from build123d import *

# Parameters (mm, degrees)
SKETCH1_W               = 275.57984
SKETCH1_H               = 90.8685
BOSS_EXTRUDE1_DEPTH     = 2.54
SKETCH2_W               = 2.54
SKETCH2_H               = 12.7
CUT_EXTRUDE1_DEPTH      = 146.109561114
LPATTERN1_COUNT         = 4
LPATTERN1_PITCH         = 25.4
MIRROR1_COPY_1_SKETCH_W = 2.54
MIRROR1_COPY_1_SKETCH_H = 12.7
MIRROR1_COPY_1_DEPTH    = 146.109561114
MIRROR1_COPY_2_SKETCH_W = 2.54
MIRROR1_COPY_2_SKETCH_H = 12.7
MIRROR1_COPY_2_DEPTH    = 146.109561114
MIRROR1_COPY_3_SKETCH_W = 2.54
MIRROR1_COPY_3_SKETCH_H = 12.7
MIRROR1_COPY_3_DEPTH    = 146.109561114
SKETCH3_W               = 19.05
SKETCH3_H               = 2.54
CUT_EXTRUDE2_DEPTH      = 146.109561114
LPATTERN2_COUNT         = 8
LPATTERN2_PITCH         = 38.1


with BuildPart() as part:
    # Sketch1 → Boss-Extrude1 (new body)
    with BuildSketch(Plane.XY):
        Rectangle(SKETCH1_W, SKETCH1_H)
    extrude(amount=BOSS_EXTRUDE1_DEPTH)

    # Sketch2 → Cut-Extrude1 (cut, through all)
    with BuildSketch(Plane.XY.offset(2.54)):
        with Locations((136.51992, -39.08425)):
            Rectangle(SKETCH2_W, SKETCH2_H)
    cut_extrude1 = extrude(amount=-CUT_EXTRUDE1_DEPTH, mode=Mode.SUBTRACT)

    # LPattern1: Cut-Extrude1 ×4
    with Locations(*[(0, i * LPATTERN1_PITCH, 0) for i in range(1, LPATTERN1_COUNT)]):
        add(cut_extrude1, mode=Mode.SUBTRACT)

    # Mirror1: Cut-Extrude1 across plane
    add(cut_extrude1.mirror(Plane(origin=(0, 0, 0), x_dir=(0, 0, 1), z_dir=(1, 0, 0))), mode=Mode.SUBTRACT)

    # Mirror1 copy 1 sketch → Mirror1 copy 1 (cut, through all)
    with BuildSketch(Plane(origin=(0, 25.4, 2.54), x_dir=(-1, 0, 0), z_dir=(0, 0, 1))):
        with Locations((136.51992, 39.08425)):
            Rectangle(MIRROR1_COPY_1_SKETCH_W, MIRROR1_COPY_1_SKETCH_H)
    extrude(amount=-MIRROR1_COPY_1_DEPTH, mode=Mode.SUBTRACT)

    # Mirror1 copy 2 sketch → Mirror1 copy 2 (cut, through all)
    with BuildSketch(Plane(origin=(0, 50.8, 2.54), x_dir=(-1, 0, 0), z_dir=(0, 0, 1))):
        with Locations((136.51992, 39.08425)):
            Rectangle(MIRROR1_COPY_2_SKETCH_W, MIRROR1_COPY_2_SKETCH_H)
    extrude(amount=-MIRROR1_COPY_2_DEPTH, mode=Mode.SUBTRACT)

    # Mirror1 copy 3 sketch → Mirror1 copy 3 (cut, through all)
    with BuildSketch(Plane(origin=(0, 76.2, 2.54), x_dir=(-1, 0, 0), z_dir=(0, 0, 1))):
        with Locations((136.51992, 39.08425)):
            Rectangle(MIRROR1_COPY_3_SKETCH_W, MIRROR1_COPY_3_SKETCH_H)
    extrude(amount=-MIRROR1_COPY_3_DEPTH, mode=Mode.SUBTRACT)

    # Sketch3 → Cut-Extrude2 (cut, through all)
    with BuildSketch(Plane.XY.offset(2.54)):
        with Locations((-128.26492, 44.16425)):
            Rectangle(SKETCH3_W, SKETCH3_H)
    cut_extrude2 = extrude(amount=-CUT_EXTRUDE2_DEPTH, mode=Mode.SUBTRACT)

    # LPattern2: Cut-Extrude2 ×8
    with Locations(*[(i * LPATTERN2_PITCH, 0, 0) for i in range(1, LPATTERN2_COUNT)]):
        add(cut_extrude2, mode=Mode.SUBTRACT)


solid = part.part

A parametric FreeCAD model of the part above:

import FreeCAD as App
import Part
import Sketcher
Q = App.Units.Quantity

doc = App.newDocument("Part")
body = doc.addObject("PartDesign::Body", "Body")

# Sketch on XY plane
sketch1 = body.newObject("Sketcher::SketchObject", "Sketch")
sketch1.AttachmentSupport = (doc.getObject("XY_Plane"), [""])
sketch1.MapMode = "FlatFace"
sketch1.addGeometry(Part.LineSegment(App.Vector(-137.78992, 45.43425, 0), App.Vector(-137.78992, -45.43425, 0)), False)
sketch1.addGeometry(Part.LineSegment(App.Vector(-137.78992, -45.43425, 0), App.Vector(137.78992, -45.43425, 0)), False)
sketch1.addGeometry(Part.LineSegment(App.Vector(137.78992, -45.43425, 0), App.Vector(137.78992, 45.43425, 0)), False)
sketch1.addGeometry(Part.LineSegment(App.Vector(137.78992, 45.43425, 0), App.Vector(-137.78992, 45.43425, 0)), False)
sketch1.addConstraint(Sketcher.Constraint("Coincident", 0, 2, 1, 1))
sketch1.addConstraint(Sketcher.Constraint("Coincident", 1, 2, 2, 1))
sketch1.addConstraint(Sketcher.Constraint("Coincident", 2, 2, 3, 1))
sketch1.addConstraint(Sketcher.Constraint("Coincident", 3, 2, 0, 1))
sketch1.addConstraint(Sketcher.Constraint("Vertical", 0))
sketch1.addConstraint(Sketcher.Constraint("Horizontal", 1))
sketch1.addConstraint(Sketcher.Constraint("Vertical", 2))
sketch1.addConstraint(Sketcher.Constraint("Horizontal", 3))
sketch1.addConstraint(Sketcher.Constraint("Symmetric", 0, 2, 2, 2, -1, 1))
sketch1.addConstraint(Sketcher.Constraint("DistanceX", 1, 1, 1, 2, Q("10.8496 in")))
sketch1.addConstraint(Sketcher.Constraint("DistanceY", 0, 2, 0, 1, Q("3.5775 in")))
pad1 = body.newObject("PartDesign::Pad", "Pad")
pad1.Profile = sketch1
pad1.Length = Q("0.1 in")

# Sketch on XY plane
sketch2 = body.newObject("Sketcher::SketchObject", "Sketch001")
sketch2.AttachmentSupport = (doc.getObject("XY_Plane"), [""])
sketch2.MapMode = "FlatFace"
sketch2.AttachmentOffset = App.Placement(App.Vector(0, 0, 0.1 * 25.4), App.Rotation())
sketch2.addGeometry(Part.LineSegment(App.Vector(135.24992, -32.73425, 0), App.Vector(135.24992, -45.43425, 0)), False)
sketch2.addGeometry(Part.LineSegment(App.Vector(135.24992, -45.43425, 0), App.Vector(137.78992, -45.43425, 0)), False)
sketch2.addGeometry(Part.LineSegment(App.Vector(137.78992, -45.43425, 0), App.Vector(137.78992, -32.73425, 0)), False)
sketch2.addGeometry(Part.LineSegment(App.Vector(137.78992, -32.73425, 0), App.Vector(135.24992, -32.73425, 0)), False)
sketch2.addConstraint(Sketcher.Constraint("Coincident", 0, 2, 1, 1))
sketch2.addConstraint(Sketcher.Constraint("Coincident", 1, 2, 2, 1))
sketch2.addConstraint(Sketcher.Constraint("Coincident", 2, 2, 3, 1))
sketch2.addConstraint(Sketcher.Constraint("Coincident", 3, 2, 0, 1))
sketch2.addConstraint(Sketcher.Constraint("Vertical", 0))
sketch2.addConstraint(Sketcher.Constraint("Horizontal", 1))
sketch2.addConstraint(Sketcher.Constraint("Vertical", 2))
sketch2.addConstraint(Sketcher.Constraint("Horizontal", 3))
sketch2.addConstraint(Sketcher.Constraint("DistanceX", 1, 1, 1, 2, Q("0.1 in")))
sketch2.addConstraint(Sketcher.Constraint("DistanceY", 0, 2, 0, 1, Q("0.5 in")))
sketch2.addConstraint(Sketcher.Constraint("DistanceX", -1, 1, 0, 2, Q("5.3248 in")))
sketch2.addConstraint(Sketcher.Constraint("DistanceY", 0, 2, -1, 1, 45.43425))
pocket1 = body.newObject("PartDesign::Pocket", "Pocket")
pocket1.Profile = sketch2
pocket1.Type = "ThroughAll"
doc.recompute()

linearpattern = body.newObject("PartDesign::LinearPattern", "LinearPattern")
linearpattern.Originals = [pocket1]
linearpattern.Direction = (doc.getObject("Y_Axis"), [""])
linearpattern.Mode = "offset"
linearpattern.Offset = Q("1 in")
linearpattern.Occurrences = 4
body.Tip = linearpattern
doc.recompute()

mirrored = body.newObject("PartDesign::Mirrored", "Mirrored")
mirrored.Originals = [pocket1]
mirrored.MirrorPlane = (doc.getObject("YZ_Plane"), [""])
body.Tip = mirrored

# Sketch on XY plane
sketch3 = body.newObject("Sketcher::SketchObject", "Sketch002")
sketch3.AttachmentSupport = (doc.getObject("XY_Plane"), [""])
sketch3.MapMode = "FlatFace"
sketch3.AttachmentOffset = App.Placement(App.Vector(0, 0, 0.1 * 25.4), App.Rotation())
sketch3.addGeometry(Part.LineSegment(App.Vector(-135.24992, -20.03425, 0), App.Vector(-135.24992, -7.33425, 0)), False)
sketch3.addGeometry(Part.LineSegment(App.Vector(-135.24992, -7.33425, 0), App.Vector(-137.78992, -7.33425, 0)), False)
sketch3.addGeometry(Part.LineSegment(App.Vector(-137.78992, -7.33425, 0), App.Vector(-137.78992, -20.03425, 0)), False)
sketch3.addGeometry(Part.LineSegment(App.Vector(-137.78992, -20.03425, 0), App.Vector(-135.24992, -20.03425, 0)), False)
sketch3.addConstraint(Sketcher.Constraint("Coincident", 0, 2, 1, 1))
sketch3.addConstraint(Sketcher.Constraint("Coincident", 1, 2, 2, 1))
sketch3.addConstraint(Sketcher.Constraint("Coincident", 2, 2, 3, 1))
sketch3.addConstraint(Sketcher.Constraint("Coincident", 3, 2, 0, 1))
sketch3.addConstraint(Sketcher.Constraint("Vertical", 0))
sketch3.addConstraint(Sketcher.Constraint("Horizontal", 1))
sketch3.addConstraint(Sketcher.Constraint("Vertical", 2))
sketch3.addConstraint(Sketcher.Constraint("Horizontal", 3))
sketch3.addConstraint(Sketcher.Constraint("DistanceX", 1, 2, 1, 1, Q("0.1 in")))
sketch3.addConstraint(Sketcher.Constraint("DistanceY", 0, 1, 0, 2, Q("0.5 in")))
sketch3.addConstraint(Sketcher.Constraint("DistanceX", 0, 2, -1, 1, Q("5.3248 in")))
sketch3.addConstraint(Sketcher.Constraint("DistanceY", 0, 2, -1, 1, 7.33425))
pocket2 = body.newObject("PartDesign::Pocket", "Pocket001")
pocket2.Profile = sketch3
pocket2.Type = "ThroughAll"

# Sketch on XY plane
sketch4 = body.newObject("Sketcher::SketchObject", "Sketch003")
sketch4.AttachmentSupport = (doc.getObject("XY_Plane"), [""])
sketch4.MapMode = "FlatFace"
sketch4.AttachmentOffset = App.Placement(App.Vector(0, 0, 0.1 * 25.4), App.Rotation())
sketch4.addGeometry(Part.LineSegment(App.Vector(-135.24992, 5.36575, 0), App.Vector(-135.24992, 18.06575, 0)), False)
sketch4.addGeometry(Part.LineSegment(App.Vector(-135.24992, 18.06575, 0), App.Vector(-137.78992, 18.06575, 0)), False)
sketch4.addGeometry(Part.LineSegment(App.Vector(-137.78992, 18.06575, 0), App.Vector(-137.78992, 5.36575, 0)), False)
sketch4.addGeometry(Part.LineSegment(App.Vector(-137.78992, 5.36575, 0), App.Vector(-135.24992, 5.36575, 0)), False)
sketch4.addConstraint(Sketcher.Constraint("Coincident", 0, 2, 1, 1))
sketch4.addConstraint(Sketcher.Constraint("Coincident", 1, 2, 2, 1))
sketch4.addConstraint(Sketcher.Constraint("Coincident", 2, 2, 3, 1))
sketch4.addConstraint(Sketcher.Constraint("Coincident", 3, 2, 0, 1))
sketch4.addConstraint(Sketcher.Constraint("Vertical", 0))
sketch4.addConstraint(Sketcher.Constraint("Horizontal", 1))
sketch4.addConstraint(Sketcher.Constraint("Vertical", 2))
sketch4.addConstraint(Sketcher.Constraint("Horizontal", 3))
sketch4.addConstraint(Sketcher.Constraint("DistanceX", 1, 2, 1, 1, Q("0.1 in")))
sketch4.addConstraint(Sketcher.Constraint("DistanceY", 0, 1, 0, 2, Q("0.5 in")))
sketch4.addConstraint(Sketcher.Constraint("DistanceX", 0, 2, -1, 1, Q("5.3248 in")))
sketch4.addConstraint(Sketcher.Constraint("DistanceY", -1, 1, 0, 2, 18.06575))
pocket3 = body.newObject("PartDesign::Pocket", "Pocket002")
pocket3.Profile = sketch4
pocket3.Type = "ThroughAll"

# Sketch on XY plane
sketch5 = body.newObject("Sketcher::SketchObject", "Sketch004")
sketch5.AttachmentSupport = (doc.getObject("XY_Plane"), [""])
sketch5.MapMode = "FlatFace"
sketch5.AttachmentOffset = App.Placement(App.Vector(0, 0, 0.1 * 25.4), App.Rotation())
sketch5.addGeometry(Part.LineSegment(App.Vector(-135.24992, 30.76575, 0), App.Vector(-135.24992, 43.46575, 0)), False)
sketch5.addGeometry(Part.LineSegment(App.Vector(-135.24992, 43.46575, 0), App.Vector(-137.78992, 43.46575, 0)), False)
sketch5.addGeometry(Part.LineSegment(App.Vector(-137.78992, 43.46575, 0), App.Vector(-137.78992, 30.76575, 0)), False)
sketch5.addGeometry(Part.LineSegment(App.Vector(-137.78992, 30.76575, 0), App.Vector(-135.24992, 30.76575, 0)), False)
sketch5.addConstraint(Sketcher.Constraint("Coincident", 0, 2, 1, 1))
sketch5.addConstraint(Sketcher.Constraint("Coincident", 1, 2, 2, 1))
sketch5.addConstraint(Sketcher.Constraint("Coincident", 2, 2, 3, 1))
sketch5.addConstraint(Sketcher.Constraint("Coincident", 3, 2, 0, 1))
sketch5.addConstraint(Sketcher.Constraint("Vertical", 0))
sketch5.addConstraint(Sketcher.Constraint("Horizontal", 1))
sketch5.addConstraint(Sketcher.Constraint("Vertical", 2))
sketch5.addConstraint(Sketcher.Constraint("Horizontal", 3))
sketch5.addConstraint(Sketcher.Constraint("DistanceX", 1, 2, 1, 1, Q("0.1 in")))
sketch5.addConstraint(Sketcher.Constraint("DistanceY", 0, 1, 0, 2, Q("0.5 in")))
sketch5.addConstraint(Sketcher.Constraint("DistanceX", 0, 2, -1, 1, Q("5.3248 in")))
sketch5.addConstraint(Sketcher.Constraint("DistanceY", -1, 1, 0, 2, 43.46575))
pocket4 = body.newObject("PartDesign::Pocket", "Pocket003")
pocket4.Profile = sketch5
pocket4.Type = "ThroughAll"

# Sketch on XY plane
sketch6 = body.newObject("Sketcher::SketchObject", "Sketch005")
sketch6.AttachmentSupport = (doc.getObject("XY_Plane"), [""])
sketch6.MapMode = "FlatFace"
sketch6.AttachmentOffset = App.Placement(App.Vector(0, 0, 0.1 * 25.4), App.Rotation())
sketch6.addGeometry(Part.LineSegment(App.Vector(-137.78992, 45.43425, 0), App.Vector(-137.78992, 42.89425, 0)), False)
sketch6.addGeometry(Part.LineSegment(App.Vector(-137.78992, 42.89425, 0), App.Vector(-118.73992, 42.89425, 0)), False)
sketch6.addGeometry(Part.LineSegment(App.Vector(-118.73992, 42.89425, 0), App.Vector(-118.73992, 45.43425, 0)), False)
sketch6.addGeometry(Part.LineSegment(App.Vector(-118.73992, 45.43425, 0), App.Vector(-137.78992, 45.43425, 0)), False)
sketch6.addConstraint(Sketcher.Constraint("Coincident", 0, 2, 1, 1))
sketch6.addConstraint(Sketcher.Constraint("Coincident", 1, 2, 2, 1))
sketch6.addConstraint(Sketcher.Constraint("Coincident", 2, 2, 3, 1))
sketch6.addConstraint(Sketcher.Constraint("Coincident", 3, 2, 0, 1))
sketch6.addConstraint(Sketcher.Constraint("Vertical", 0))
sketch6.addConstraint(Sketcher.Constraint("Horizontal", 1))
sketch6.addConstraint(Sketcher.Constraint("Vertical", 2))
sketch6.addConstraint(Sketcher.Constraint("Horizontal", 3))
sketch6.addConstraint(Sketcher.Constraint("DistanceY", 0, 2, 0, 1, Q("0.1 in")))
sketch6.addConstraint(Sketcher.Constraint("DistanceX", 1, 1, 1, 2, Q("0.75 in")))
sketch6.addConstraint(Sketcher.Constraint("DistanceX", 0, 2, -1, 1, Q("5.4248 in")))
sketch6.addConstraint(Sketcher.Constraint("DistanceY", -1, 1, 0, 2, 42.89425))
pocket5 = body.newObject("PartDesign::Pocket", "Pocket004")
pocket5.Profile = sketch6
pocket5.Type = "ThroughAll"
doc.recompute()

linearpattern2 = body.newObject("PartDesign::LinearPattern", "LinearPattern001")
linearpattern2.Originals = [pocket5]
linearpattern2.Direction = (doc.getObject("X_Axis"), [""])
linearpattern2.Mode = "offset"
linearpattern2.Offset = Q("1.5 in")
linearpattern2.Occurrences = 8
body.Tip = linearpattern2

doc.recompute()
